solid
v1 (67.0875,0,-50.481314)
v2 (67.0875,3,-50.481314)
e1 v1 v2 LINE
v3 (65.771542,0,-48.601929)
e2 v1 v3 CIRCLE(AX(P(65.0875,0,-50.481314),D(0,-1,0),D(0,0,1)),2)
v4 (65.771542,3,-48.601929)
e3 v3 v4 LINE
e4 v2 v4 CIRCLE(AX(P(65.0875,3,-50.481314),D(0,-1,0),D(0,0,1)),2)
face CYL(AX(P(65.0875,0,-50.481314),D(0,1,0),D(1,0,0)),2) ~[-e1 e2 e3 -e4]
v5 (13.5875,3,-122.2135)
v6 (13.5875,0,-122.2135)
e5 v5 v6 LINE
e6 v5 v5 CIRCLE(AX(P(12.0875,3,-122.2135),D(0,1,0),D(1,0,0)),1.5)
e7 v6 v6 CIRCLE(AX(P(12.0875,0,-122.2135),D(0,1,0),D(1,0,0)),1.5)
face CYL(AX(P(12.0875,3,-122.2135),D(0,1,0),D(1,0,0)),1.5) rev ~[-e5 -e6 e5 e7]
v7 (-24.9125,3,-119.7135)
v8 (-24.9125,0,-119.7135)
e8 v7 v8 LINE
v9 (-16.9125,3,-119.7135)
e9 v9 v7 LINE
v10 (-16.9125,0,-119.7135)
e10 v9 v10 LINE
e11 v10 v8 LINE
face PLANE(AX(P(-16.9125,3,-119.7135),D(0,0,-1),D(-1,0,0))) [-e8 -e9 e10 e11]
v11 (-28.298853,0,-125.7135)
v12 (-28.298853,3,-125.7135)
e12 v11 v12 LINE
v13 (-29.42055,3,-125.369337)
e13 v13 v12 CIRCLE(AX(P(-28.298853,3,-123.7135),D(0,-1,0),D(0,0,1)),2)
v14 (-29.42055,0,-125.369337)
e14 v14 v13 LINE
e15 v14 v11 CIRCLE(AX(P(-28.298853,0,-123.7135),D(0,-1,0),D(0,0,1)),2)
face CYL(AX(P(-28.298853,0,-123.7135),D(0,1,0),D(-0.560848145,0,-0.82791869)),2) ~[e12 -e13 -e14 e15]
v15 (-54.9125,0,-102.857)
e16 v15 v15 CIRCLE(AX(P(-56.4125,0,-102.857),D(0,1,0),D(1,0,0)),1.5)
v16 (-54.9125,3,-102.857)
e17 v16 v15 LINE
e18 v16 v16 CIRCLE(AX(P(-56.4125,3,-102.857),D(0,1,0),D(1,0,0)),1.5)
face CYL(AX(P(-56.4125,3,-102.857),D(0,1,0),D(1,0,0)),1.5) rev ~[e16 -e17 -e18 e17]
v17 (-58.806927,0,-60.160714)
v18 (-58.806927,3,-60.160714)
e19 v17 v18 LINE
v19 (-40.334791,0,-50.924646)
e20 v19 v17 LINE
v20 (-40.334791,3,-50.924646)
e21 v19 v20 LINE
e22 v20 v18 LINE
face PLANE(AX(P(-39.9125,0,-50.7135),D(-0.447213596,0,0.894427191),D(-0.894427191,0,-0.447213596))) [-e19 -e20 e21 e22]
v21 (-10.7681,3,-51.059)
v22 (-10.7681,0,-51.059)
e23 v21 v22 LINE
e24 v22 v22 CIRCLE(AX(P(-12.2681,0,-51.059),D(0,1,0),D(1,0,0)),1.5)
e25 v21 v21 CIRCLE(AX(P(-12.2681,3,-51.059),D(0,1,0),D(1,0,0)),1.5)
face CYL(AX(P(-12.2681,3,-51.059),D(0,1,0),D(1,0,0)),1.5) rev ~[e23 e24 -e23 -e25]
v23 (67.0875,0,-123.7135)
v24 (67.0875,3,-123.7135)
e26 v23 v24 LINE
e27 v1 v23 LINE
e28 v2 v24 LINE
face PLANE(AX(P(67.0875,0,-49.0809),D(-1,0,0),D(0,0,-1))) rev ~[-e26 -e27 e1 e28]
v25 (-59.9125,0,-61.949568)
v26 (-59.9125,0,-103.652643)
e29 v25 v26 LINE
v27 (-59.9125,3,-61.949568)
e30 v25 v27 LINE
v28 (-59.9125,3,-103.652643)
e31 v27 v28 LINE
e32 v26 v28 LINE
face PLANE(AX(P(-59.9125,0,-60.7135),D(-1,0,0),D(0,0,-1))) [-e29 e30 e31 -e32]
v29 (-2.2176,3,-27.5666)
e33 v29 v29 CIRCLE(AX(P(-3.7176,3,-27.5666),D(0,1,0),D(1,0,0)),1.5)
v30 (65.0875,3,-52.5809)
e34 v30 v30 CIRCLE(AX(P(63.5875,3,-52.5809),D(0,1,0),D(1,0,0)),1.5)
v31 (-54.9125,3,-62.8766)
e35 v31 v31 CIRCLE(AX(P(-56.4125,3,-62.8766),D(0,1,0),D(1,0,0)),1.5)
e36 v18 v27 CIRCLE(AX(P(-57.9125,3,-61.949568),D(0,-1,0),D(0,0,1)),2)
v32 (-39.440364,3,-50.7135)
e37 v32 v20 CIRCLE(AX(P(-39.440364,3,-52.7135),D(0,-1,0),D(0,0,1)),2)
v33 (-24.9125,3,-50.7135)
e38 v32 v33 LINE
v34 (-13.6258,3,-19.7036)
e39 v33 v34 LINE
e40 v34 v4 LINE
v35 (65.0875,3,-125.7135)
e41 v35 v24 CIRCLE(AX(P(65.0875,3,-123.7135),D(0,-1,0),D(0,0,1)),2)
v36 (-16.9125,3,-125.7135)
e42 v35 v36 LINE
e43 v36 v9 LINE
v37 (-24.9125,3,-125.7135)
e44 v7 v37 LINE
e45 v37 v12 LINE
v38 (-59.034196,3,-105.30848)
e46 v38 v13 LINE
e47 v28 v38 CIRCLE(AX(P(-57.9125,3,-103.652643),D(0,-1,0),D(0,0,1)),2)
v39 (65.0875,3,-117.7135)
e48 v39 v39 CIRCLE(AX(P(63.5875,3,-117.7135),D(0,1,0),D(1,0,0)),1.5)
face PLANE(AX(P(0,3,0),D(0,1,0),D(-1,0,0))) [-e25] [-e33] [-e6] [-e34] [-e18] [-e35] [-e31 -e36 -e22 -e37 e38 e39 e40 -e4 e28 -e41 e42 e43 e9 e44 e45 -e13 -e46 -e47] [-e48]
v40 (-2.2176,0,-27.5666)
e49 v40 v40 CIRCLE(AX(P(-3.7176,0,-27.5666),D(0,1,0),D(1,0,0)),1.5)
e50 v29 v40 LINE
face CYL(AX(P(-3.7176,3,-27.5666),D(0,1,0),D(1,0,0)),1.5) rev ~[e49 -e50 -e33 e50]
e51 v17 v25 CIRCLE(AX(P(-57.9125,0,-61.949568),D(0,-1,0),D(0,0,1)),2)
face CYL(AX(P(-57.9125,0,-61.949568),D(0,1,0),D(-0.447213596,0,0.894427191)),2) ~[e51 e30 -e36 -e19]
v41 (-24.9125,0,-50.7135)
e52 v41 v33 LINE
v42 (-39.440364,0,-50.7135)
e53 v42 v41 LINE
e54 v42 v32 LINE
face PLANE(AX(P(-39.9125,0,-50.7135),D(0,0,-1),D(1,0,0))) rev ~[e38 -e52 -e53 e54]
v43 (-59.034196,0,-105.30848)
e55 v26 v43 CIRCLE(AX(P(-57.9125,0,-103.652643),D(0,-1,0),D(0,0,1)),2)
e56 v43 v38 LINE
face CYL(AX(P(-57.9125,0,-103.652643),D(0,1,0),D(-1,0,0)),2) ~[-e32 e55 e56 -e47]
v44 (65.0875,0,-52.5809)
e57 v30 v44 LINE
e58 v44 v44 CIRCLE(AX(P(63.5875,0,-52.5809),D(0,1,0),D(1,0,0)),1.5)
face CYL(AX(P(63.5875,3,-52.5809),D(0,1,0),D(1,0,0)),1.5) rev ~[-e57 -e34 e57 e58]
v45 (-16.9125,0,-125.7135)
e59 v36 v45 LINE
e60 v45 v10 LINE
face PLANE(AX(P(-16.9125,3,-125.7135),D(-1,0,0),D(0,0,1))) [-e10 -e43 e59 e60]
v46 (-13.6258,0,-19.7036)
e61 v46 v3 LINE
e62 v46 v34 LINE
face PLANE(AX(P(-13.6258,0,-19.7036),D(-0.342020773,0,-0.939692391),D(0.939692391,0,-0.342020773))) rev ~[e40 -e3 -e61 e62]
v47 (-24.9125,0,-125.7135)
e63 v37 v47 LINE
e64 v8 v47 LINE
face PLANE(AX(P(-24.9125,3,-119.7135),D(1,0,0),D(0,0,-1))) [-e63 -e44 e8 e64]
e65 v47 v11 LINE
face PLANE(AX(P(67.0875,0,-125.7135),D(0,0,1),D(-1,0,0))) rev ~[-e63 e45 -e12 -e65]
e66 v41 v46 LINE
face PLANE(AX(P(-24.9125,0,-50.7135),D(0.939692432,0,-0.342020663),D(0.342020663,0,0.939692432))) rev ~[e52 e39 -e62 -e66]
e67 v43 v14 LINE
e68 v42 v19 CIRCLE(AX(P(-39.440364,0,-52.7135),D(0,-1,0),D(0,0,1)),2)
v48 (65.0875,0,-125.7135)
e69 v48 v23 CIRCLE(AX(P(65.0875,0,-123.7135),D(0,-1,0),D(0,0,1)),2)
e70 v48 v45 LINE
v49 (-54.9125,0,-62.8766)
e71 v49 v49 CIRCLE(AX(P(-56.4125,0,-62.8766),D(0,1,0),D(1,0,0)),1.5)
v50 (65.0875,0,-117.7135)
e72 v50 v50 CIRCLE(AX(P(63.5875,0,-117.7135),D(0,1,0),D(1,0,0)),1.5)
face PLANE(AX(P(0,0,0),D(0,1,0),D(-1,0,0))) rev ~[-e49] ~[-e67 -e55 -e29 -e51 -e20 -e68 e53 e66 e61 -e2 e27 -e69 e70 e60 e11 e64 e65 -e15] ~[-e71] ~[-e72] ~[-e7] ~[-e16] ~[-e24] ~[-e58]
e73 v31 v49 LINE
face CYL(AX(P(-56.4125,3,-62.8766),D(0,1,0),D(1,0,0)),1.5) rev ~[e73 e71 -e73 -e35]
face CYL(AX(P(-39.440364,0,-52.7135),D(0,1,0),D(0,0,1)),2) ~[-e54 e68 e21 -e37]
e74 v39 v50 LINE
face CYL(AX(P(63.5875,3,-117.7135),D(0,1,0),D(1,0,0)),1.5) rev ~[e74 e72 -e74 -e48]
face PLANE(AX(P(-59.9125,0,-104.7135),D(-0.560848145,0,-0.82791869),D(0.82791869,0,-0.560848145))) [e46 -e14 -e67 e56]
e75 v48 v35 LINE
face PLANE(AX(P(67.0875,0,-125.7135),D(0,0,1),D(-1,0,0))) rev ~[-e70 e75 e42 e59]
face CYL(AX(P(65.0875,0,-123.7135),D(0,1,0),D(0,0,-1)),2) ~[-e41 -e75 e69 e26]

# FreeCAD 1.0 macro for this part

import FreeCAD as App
import Part
import Sketcher
from FreeCAD import Vector
Q = App.Units.Quantity


def edges_at(feature, points):
    """Names of the edges that pass closest to the given points."""
    edges = feature.Shape.Edges
    near = lambda p: min(range(len(edges)), key=lambda i: edges[i].distToShape(Part.Vertex(*p))[0])
    return sorted({f"Edge{near(p) + 1}" for p in points})

doc = App.newDocument("Part")
body = doc.addObject("PartDesign::Body", "Body")

# Sketch on XZ plane
sketch1 = doc.addObject("Sketcher::SketchObject", "Sketch")
body.addObject(sketch1)
sketch1.AttachmentSupport = (doc.XZ_Plane, [""])
sketch1.MapMode = "FlatFace"
sketch1.addGeometry(Part.LineSegment(Vector(67, -49, 0), Vector(67, -126, 0)), False)
sketch1.addGeometry(Part.LineSegment(Vector(67, -126, 0), Vector(-29, -126, 0)), False)
sketch1.addGeometry(Part.LineSegment(Vector(-29, -126, 0), Vector(-60, -105, 0)), False)
sketch1.addGeometry(Part.LineSegment(Vector(-60, -105, 0), Vector(-60, -61, 0)), False)
sketch1.addGeometry(Part.LineSegment(Vector(-60, -61, 0), Vector(-40, -51, 0)), False)
sketch1.addGeometry(Part.LineSegment(Vector(-40, -51, 0), Vector(-25, -51, 0)), False)
sketch1.addGeometry(Part.LineSegment(Vector(-25, -51, 0), Vector(-14, -20, 0)), False)
sketch1.addGeometry(Part.LineSegment(Vector(-14, -20, 0), Vector(67, -49, 0)), False)
sketch1.addConstraint(Sketcher.Constraint("Coincident", 0, 2, 1, 1))
sketch1.addConstraint(Sketcher.Constraint("Coincident", 1, 2, 2, 1))
sketch1.addConstraint(Sketcher.Constraint("Coincident", 2, 2, 3, 1))
sketch1.addConstraint(Sketcher.Constraint("Coincident", 3, 2, 4, 1))
sketch1.addConstraint(Sketcher.Constraint("Coincident", 4, 2, 5, 1))
sketch1.addConstraint(Sketcher.Constraint("Coincident", 5, 2, 6, 1))
sketch1.addConstraint(Sketcher.Constraint("Coincident", 6, 2, 7, 1))
sketch1.addConstraint(Sketcher.Constraint("Coincident", 7, 2, 0, 1))
sketch1.addConstraint(Sketcher.Constraint("Vertical", 0))
sketch1.addConstraint(Sketcher.Constraint("Horizontal", 1))
sketch1.addConstraint(Sketcher.Constraint("Vertical", 3))
sketch1.addConstraint(Sketcher.Constraint("Horizontal", 5))
sketch1.addConstraint(Sketcher.Constraint("Perpendicular", 6, 7))
sketch1.addConstraint(Sketcher.Constraint("DistanceX", 1, 2, 1, 1, 96.0))
sketch1.addConstraint(Sketcher.Constraint("DistanceX", 5, 1, 5, 2, 15.0))
sketch1.addConstraint(Sketcher.Constraint("DistanceY", 3, 1, 3, 2, 44.0))
sketch1.addConstraint(Sketcher.Constraint("Angle", 7, Q("-20 deg")))
sketch1.addConstraint(Sketcher.Constraint("Distance", 6, 33.0))
sketch1.addConstraint(Sketcher.Constraint("DistanceX", 2, 2, 1, 2, 31.0))
sketch1.addConstraint(Sketcher.Constraint("DistanceY", 1, 2, 2, 2, 21.0))
sketch1.addConstraint(Sketcher.Constraint("DistanceX", 3, 2, 4, 2, 20.0))
sketch1.addConstraint(Sketcher.Constraint("DistanceY", 3, 2, 4, 2, 10.0))
sketch1.addConstraint(Sketcher.Constraint("DistanceY", 7, 2, -1, 1, 49.081))
sketch1.addConstraint(Sketcher.Constraint("DistanceX", -1, 1, 0, 2, 67.0875))
pad1 = doc.addObject("PartDesign::Pad", "Pad")
body.addObject(pad1)
pad1.Profile = sketch1
pad1.Length = 3
pad1.Reversed = True

# Sketch on XZ plane
sketch2 = doc.addObject("Sketcher::SketchObject", "Sketch001")
body.addObject(sketch2)
sketch2.AttachmentSupport = (doc.XZ_Plane, [""])
sketch2.MapMode = "FlatFace"
sketch2.AttachmentOffset = App.Placement(Vector(0, 0, -3), App.Rotation())
sketch2.addGeometry(Part.Circle(Vector(63.6, -117.7, 0), Vector(0, 0, 1), 1.5), False)
sketch2.addGeometry(Part.Circle(Vector(-56.4, -102.9, 0), Vector(0, 0, 1), 1.5), False)
sketch2.addGeometry(Part.Circle(Vector(-56.4, -62.9, 0), Vector(0, 0, 1), 1.5), False)
sketch2.addGeometry(Part.Circle(Vector(-3.7, -27.6, 0), Vector(0, 0, 1), 1.5), False)
sketch2.addGeometry(Part.Circle(Vector(-12.3, -51.1, 0), Vector(0, 0, 1), 1.5), False)
sketch2.addGeometry(Part.Circle(Vector(63.6, -52.6, 0), Vector(0, 0, 1), 1.5), False)
sketch2.addGeometry(Part.Circle(Vector(12.1, -122.2, 0), Vector(0, 0, 1), 1.5), False)
sketch2.addConstraint(Sketcher.Constraint("Equal", 0, 1))
sketch2.addConstraint(Sketcher.Constraint("Equal", 1, 2))
sketch2.addConstraint(Sketcher.Constraint("Equal", 2, 3))
sketch2.addConstraint(Sketcher.Constraint("Equal", 3, 4))
sketch2.addConstraint(Sketcher.Constraint("Equal", 4, 5))
sketch2.addConstraint(Sketcher.Constraint("Equal", 5, 6))
sketch2.addConstraint(Sketcher.Constraint("Vertical", 1, 3, 2, 3))
sketch2.addConstraint(Sketcher.Constraint("Vertical", 0, 3, 5, 3))
sketch2.addConstraint(Sketcher.Constraint("Diameter", 0, 3.0))
sketch2.addConstraint(Sketcher.Constraint("DistanceX", 1, 3, 0, 3, 120.0))
sketch2.addConstraint(Sketcher.Constraint("DistanceX", 6, 3, 0, 3, 51.5))
sketch2.addConstraint(Sketcher.Constraint("DistanceY", 6, 3, 0, 3, 4.5))
sketch2.addConstraint(Sketcher.Constraint("DistanceY", 2, 3, 3, 3, 35.31))
sketch2.addConstraint(Sketcher.Constraint("DistanceY", 1, 3, -1, 1, 102.857))
sketch2.addConstraint(Sketcher.Constraint("DistanceX", 4, 3, -1, 1, 12.268))
sketch2.addConstraint(Sketcher.Constraint("DistanceY", 4, 3, -1, 1, 51.059))
sketch2.addConstraint(Sketcher.Constraint("DistanceY", 5, 3, -1, 1, 52.581))
sketch2.addConstraint(Sketcher.Constraint("DistanceY", 0, 3, 2, 3, 54.837))
sketch2.addConstraint(Sketcher.Constraint("DistanceX", 2, 3, 3, 3, 52.695))
sketch2.addConstraint(Sketcher.Constraint("DistanceX", -1, 1, 0, 3, 63.5875))
sketch2.addConstraint(Sketcher.Constraint("DistanceY", 0, 3, -1, 1, 117.7135))
pocket1 = doc.addObject("PartDesign::Pocket", "Pocket")
body.addObject(pocket1)
pocket1.Profile = sketch2
pocket1.Type = "ThroughAll"
pocket1.Reversed = True

# Sketch on XZ plane
sketch3 = doc.addObject("Sketcher::SketchObject", "Sketch002")
body.addObject(sketch3)
sketch3.AttachmentSupport = (doc.XZ_Plane, [""])
sketch3.MapMode = "FlatFace"
sketch3.AttachmentOffset = App.Placement(Vector(0, 0, -3), App.Rotation())
sketch3.addGeometry(Part.LineSegment(Vector(-17, -120, 0), Vector(-17, -126, 0)), False)
sketch3.addGeometry(Part.LineSegment(Vector(-17, -126, 0), Vector(-25, -126, 0)), False)
sketch3.addGeometry(Part.LineSegment(Vector(-25, -126, 0), Vector(-25, -120, 0)), False)
sketch3.addGeometry(Part.LineSegment(Vector(-25, -120, 0), Vector(-17, -120, 0)), False)
sketch3.addConstraint(Sketcher.Constraint("Coincident", 0, 2, 1, 1))
sketch3.addConstraint(Sketcher.Constraint("Coincident", 1, 2, 2, 1))
sketch3.addConstraint(Sketcher.Constraint("Coincident", 2, 2, 3, 1))
sketch3.addConstraint(Sketcher.Constraint("Coincident", 3, 2, 0, 1))
sketch3.addConstraint(Sketcher.Constraint("Vertical", 0))
sketch3.addConstraint(Sketcher.Constraint("Horizontal", 1))
sketch3.addConstraint(Sketcher.Constraint("Vertical", 2))
sketch3.addConstraint(Sketcher.Constraint("Horizontal", 3))
sketch3.addConstraint(Sketcher.Constraint("DistanceX", 1, 2, 1, 1, 8.0))
sketch3.addConstraint(Sketcher.Constraint("DistanceY", 0, 2, 0, 1, 6.0))
sketch3.addConstraint(Sketcher.Constraint("DistanceX", 0, 2, -1, 1, 16.9125))
sketch3.addConstraint(Sketcher.Constraint("DistanceY", 0, 2, -1, 1, 125.7135))
pocket2 = doc.addObject("PartDesign::Pocket", "Pocket001")
body.addObject(pocket2)
pocket2.Profile = sketch3
pocket2.Type = "ThroughAll"
pocket2.Reversed = True
doc.recompute()

fillet = doc.addObject("PartDesign::Fillet", "Fillet")
body.addObject(fillet)
fillet.Base = (pocket2, edges_at(pocket2, [(-39.913, 1.5, -50.714)]))
fillet.Radius = 2
doc.recompute()

fillet2 = doc.addObject("PartDesign::Fillet", "Fillet001")
body.addObject(fillet2)
fillet2.Base = (fillet, edges_at(fillet, [(-59.913, 1.5, -60.714)]))
fillet2.Radius = 2
doc.recompute()

fillet3 = doc.addObject("PartDesign::Fillet", "Fillet002")
body.addObject(fillet3)
fillet3.Base = (fillet2, edges_at(fillet2, [(-59.913, 1.5, -104.713)]))
fillet3.Radius = 2
doc.recompute()

fillet4 = doc.addObject("PartDesign::Fillet", "Fillet003")
body.addObject(fillet4)
fillet4.Base = (fillet3, edges_at(fillet3, [(-28.913, 1.5, -125.713)]))
fillet4.Radius = 2
doc.recompute()

fillet5 = doc.addObject("PartDesign::Fillet", "Fillet004")
body.addObject(fillet5)
fillet5.Base = (fillet4, edges_at(fillet4, [(67.088, 1.5, -125.713)]))
fillet5.Radius = 2
doc.recompute()

fillet6 = doc.addObject("PartDesign::Fillet", "Fillet005")
body.addObject(fillet6)
fillet6.Base = (fillet5, edges_at(fillet5, [(67.088, 1.5, -49.081)]))
fillet6.Radius = 2

doc.recompute()
